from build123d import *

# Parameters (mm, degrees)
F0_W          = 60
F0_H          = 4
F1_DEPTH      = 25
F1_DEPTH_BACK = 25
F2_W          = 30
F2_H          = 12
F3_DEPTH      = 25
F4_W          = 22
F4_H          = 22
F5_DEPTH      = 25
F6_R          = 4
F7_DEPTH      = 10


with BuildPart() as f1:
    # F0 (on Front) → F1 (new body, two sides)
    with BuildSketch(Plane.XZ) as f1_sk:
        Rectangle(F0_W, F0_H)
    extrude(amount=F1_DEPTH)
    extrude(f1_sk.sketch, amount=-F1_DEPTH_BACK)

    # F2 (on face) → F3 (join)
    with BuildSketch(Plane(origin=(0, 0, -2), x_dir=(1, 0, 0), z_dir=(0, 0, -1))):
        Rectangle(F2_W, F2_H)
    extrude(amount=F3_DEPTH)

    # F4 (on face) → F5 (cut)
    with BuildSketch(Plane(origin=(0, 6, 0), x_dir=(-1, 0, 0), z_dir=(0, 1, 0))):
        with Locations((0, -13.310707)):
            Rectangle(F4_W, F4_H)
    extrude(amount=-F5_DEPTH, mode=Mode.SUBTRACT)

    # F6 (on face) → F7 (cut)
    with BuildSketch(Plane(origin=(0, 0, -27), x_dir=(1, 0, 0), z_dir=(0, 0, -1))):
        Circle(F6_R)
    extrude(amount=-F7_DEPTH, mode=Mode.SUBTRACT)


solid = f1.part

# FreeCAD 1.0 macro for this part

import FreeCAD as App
import Part
import Sketcher
from FreeCAD import Vector

doc = App.newDocument("Part")
body = doc.addObject("PartDesign::Body", "Body")

sketch1 = body.newObject("Sketcher::SketchObject", "Sketch")
sketch1.AttachmentSupport = (doc.getObject("XZ_Plane"), [""])
sketch1.MapMode = "FlatFace"
sketch1.addGeometry([
    Part.LineSegment(Vector(-30, 2, 0), Vector(-30, -2, 0)),
    Part.LineSegment(Vector(-30, -2, 0), Vector(30, -2, 0)),
    Part.LineSegment(Vector(30, -2, 0), Vector(30, 2, 0)),
    Part.LineSegment(Vector(30, 2, 0), Vector(-30, 2, 0)),
], False)
sketch1.addConstraint([
    Sketcher.Constraint("Coincident", 0, 2, 1, 1),
    Sketcher.Constraint("Coincident", 1, 2, 2, 1),
    Sketcher.Constraint("Coincident", 2, 2, 3, 1),
    Sketcher.Constraint("Coincident", 3, 2, 0, 1),
    Sketcher.Constraint("Vertical", 0),
    Sketcher.Constraint("Horizontal", 1),
    Sketcher.Constraint("Vertical", 2),
    Sketcher.Constraint("Horizontal", 3),
    Sketcher.Constraint("Symmetric", 0, 2, 2, 2, -1, 1),
    Sketcher.Constraint("DistanceX", 1, 1, 1, 2, 60.0),
    Sketcher.Constraint("DistanceY", 0, 2, 0, 1, 4.0),
])
pad1 = body.newObject("PartDesign::Pad", "Pad")
pad1.Profile = sketch1
pad1.Type = "TwoLengths"
pad1.Length = 25
pad1.Length2 = 25

sketch2 = body.newObject("Sketcher::SketchObject", "Sketch001")
sketch2.AttachmentSupport = (doc.getObject("XY_Plane"), [""])
sketch2.MapMode = "FlatFace"
sketch2.AttachmentOffset = App.Placement(Vector(0, 0, -2), App.Rotation())
sketch2.addGeometry([
    Part.LineSegment(Vector(-15, -6, 0), Vector(-15, 6, 0)),
    Part.LineSegment(Vector(-15, 6, 0), Vector(15, 6, 0)),
    Part.LineSegment(Vector(15, 6, 0), Vector(15, -6, 0)),
    Part.LineSegment(Vector(15, -6, 0), Vector(-15, -6, 0)),
], False)
sketch2.addConstraint([
    Sketcher.Constraint("Coincident", 0, 2, 1, 1),
    Sketcher.Constraint("Coincident", 1, 2, 2, 1),
    Sketcher.Constraint("Coincident", 2, 2, 3, 1),
    Sketcher.Constraint("Coincident", 3, 2, 0, 1),
    Sketcher.Constraint("Vertical", 0),
    Sketcher.Constraint("Horizontal", 1),
    Sketcher.Constraint("Vertical", 2),
    Sketcher.Constraint("Horizontal", 3),
    Sketcher.Constraint("Symmetric", 0, 2, 2, 2, -1, 1),
    Sketcher.Constraint("DistanceX", 1, 1, 1, 2, 30.0),
    Sketcher.Constraint("DistanceY", 0, 1, 0, 2, 12.0),
])
pad2 = body.newObject("PartDesign::Pad", "Pad001")
pad2.Profile = sketch2
pad2.Length = 25
pad2.Reversed = True

sketch3 = body.newObject("Sketcher::SketchObject", "Sketch002")
sketch3.AttachmentSupport = (doc.getObject("XZ_Plane"), [""])
sketch3.MapMode = "FlatFace"
sketch3.AttachmentOffset = App.Placement(Vector(0, 0, -6), App.Rotation())
sketch3.addGeometry([
    Part.LineSegment(Vector(11, -2, 0), Vector(11, -24, 0)),
    Part.LineSegment(Vector(11, -24, 0), Vector(-11, -24, 0)),
    Part.LineSegment(Vector(-11, -24, 0), Vector(-11, -2, 0)),
    Part.LineSegment(Vector(-11, -2, 0), Vector(11, -2, 0)),
], False)
sketch3.addConstraint([
    Sketcher.Constraint("Coincident", 0, 2, 1, 1),
    Sketcher.Constraint("Coincident", 1, 2, 2, 1),
    Sketcher.Constraint("Coincident", 2, 2, 3, 1),
    Sketcher.Constraint("Coincident", 3, 2, 0, 1),
    Sketcher.Constraint("Vertical", 0),
    Sketcher.Constraint("Horizontal", 1),
    Sketcher.Constraint("Vertical", 2),
    Sketcher.Constraint("Horizontal", 3),
    Sketcher.Constraint("Equal", 3, 0),
    Sketcher.Constraint("DistanceX", 1, 2, 1, 1, 22.0),
    Sketcher.Constraint("DistanceX", -1, 1, 0, 2, 11.0),
    Sketcher.Constraint("DistanceY", 0, 2, -1, 1, 24.310707),
])
pocket1 = body.newObject("PartDesign::Pocket", "Pocket")
pocket1.Profile = sketch3
pocket1.Length = 25
pocket1.Reversed = True

sketch4 = body.newObject("Sketcher::SketchObject", "Sketch003")
sketch4.AttachmentSupport = (doc.getObject("XY_Plane"), [""])
sketch4.MapMode = "FlatFace"
sketch4.AttachmentOffset = App.Placement(Vector(0, 0, -27), App.Rotation())
sketch4.addGeometry(Part.Circle(Vector(0, 0, 0), Vector(0, 0, 1), 4), False)
sketch4.addConstraint([
    Sketcher.Constraint("Coincident", 0, 3, -1, 1),
    Sketcher.Constraint("Diameter", 0, 8.0),
])
pocket2 = body.newObject("PartDesign::Pocket", "Pocket001")
pocket2.Profile = sketch4
pocket2.Length = 10
pocket2.Reversed = True

doc.recompute()
